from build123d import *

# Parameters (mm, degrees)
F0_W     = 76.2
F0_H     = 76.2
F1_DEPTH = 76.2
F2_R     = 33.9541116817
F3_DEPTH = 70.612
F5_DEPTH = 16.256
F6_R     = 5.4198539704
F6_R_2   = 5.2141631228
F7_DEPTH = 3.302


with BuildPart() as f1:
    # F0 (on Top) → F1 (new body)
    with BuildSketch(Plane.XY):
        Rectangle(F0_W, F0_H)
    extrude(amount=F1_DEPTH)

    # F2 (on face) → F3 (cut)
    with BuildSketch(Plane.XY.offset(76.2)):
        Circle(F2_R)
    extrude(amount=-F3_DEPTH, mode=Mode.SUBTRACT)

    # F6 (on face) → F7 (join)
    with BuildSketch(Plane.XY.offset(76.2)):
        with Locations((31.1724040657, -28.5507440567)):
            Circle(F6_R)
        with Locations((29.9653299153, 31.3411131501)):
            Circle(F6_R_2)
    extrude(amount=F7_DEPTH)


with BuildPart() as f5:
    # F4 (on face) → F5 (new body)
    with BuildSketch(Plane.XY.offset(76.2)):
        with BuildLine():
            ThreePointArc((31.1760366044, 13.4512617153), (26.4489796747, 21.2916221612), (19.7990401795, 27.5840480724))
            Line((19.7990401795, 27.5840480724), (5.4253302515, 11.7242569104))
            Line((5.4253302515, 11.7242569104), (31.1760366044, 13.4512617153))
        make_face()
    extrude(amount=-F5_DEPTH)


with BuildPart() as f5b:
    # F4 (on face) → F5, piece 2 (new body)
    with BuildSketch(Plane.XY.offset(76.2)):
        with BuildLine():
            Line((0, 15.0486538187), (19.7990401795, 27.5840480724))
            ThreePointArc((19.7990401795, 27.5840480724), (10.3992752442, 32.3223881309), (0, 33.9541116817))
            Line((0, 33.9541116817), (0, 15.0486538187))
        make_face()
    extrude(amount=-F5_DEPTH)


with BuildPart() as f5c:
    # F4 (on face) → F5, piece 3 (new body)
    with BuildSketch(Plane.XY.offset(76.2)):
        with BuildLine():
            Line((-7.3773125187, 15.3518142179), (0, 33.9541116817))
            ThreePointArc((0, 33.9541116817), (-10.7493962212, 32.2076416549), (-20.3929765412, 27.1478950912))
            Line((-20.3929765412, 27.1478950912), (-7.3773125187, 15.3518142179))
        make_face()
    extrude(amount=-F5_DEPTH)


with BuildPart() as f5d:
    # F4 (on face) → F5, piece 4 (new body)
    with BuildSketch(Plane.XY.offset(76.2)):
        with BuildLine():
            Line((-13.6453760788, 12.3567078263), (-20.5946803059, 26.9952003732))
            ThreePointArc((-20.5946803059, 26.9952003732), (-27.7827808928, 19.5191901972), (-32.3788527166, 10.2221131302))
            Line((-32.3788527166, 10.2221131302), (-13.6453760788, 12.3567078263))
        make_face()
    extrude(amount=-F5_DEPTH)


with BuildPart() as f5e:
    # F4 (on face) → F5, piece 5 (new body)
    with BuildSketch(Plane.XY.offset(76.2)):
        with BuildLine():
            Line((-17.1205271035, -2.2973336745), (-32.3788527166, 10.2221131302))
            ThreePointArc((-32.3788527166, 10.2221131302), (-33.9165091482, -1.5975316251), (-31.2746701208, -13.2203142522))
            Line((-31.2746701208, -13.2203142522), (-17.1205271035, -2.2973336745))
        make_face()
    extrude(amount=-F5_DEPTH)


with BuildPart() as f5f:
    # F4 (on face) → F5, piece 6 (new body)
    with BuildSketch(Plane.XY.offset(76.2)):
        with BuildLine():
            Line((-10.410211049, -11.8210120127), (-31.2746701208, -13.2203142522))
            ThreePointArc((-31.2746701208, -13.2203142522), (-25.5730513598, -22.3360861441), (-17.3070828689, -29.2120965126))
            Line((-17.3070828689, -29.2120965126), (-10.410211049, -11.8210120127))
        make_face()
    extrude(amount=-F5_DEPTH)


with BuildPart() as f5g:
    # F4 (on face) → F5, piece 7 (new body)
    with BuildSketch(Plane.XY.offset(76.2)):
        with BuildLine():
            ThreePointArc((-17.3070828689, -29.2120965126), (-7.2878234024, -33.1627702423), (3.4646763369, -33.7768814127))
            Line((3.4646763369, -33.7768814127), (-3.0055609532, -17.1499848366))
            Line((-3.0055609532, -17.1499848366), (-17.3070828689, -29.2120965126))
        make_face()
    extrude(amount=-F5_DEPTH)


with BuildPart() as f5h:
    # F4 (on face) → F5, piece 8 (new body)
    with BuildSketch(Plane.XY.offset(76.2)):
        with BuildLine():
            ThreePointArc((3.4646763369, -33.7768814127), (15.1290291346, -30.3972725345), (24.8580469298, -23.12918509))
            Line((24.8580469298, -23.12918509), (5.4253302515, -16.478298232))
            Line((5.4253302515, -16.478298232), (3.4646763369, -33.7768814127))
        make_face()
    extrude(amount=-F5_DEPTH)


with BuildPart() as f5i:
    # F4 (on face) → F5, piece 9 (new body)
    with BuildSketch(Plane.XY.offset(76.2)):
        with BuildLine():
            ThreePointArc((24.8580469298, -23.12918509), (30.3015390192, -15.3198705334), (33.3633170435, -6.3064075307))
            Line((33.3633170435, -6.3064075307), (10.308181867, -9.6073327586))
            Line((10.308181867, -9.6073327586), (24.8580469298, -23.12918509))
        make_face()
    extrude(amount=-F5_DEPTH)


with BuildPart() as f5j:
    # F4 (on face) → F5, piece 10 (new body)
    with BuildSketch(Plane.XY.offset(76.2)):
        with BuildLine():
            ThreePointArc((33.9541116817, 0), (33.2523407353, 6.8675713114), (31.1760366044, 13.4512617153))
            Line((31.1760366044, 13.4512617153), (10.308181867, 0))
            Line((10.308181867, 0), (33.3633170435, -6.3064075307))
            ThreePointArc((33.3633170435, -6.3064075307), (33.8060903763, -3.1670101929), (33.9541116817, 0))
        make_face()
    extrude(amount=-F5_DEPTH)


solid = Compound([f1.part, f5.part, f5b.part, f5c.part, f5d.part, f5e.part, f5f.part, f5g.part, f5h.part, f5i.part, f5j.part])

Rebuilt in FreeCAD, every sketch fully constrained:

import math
import FreeCAD as App
import Part
import Sketcher
from FreeCAD import Vector
Q = App.Units.Quantity

doc = App.newDocument("Part")
params = doc.addObject("Spreadsheet::Sheet", "Params")
for row, (alias, value) in enumerate([
    ("sketch1_width", "3 in"),
    ("pad1_length", "3 in"),
    ("pocket1_length", "2.78 in"),
    ("pad2_length", "0.13 in"),
    ("pad3_length", "0.64 in"),
    ("pad4_length", "0.64 in"),
    ("pad5_length", "0.64 in"),
    ("pad6_length", "0.64 in"),
    ("pad7_length", "0.64 in"),
    ("pad8_length", "0.64 in"),
    ("pad9_length", "0.64 in"),
    ("pad10_length", "0.64 in"),
    ("pad11_length", "0.64 in"),
    ("pad12_length", "0.64 in"),
], start=1):
    params.set(f"A{row}", alias)
    params.set(f"B{row}", "=" + value)
    params.setAlias(f"B{row}", alias)

body = doc.addObject("PartDesign::Body", "Body")

# Sketch on XY plane
sketch1 = doc.addObject("Sketcher::SketchObject", "Sketch")
body.addObject(sketch1)
sketch1.AttachmentSupport = (doc.XY_Plane, [""])
sketch1.MapMode = "FlatFace"
sketch1.addGeometry([
    Part.LineSegment(Vector(-38, 38, 0), Vector(-38, -38, 0)),
    Part.LineSegment(Vector(-38, -38, 0), Vector(38, -38, 0)),
    Part.LineSegment(Vector(38, -38, 0), Vector(38, 38, 0)),
    Part.LineSegment(Vector(38, 38, 0), Vector(-38, 38, 0)),
], False)
sketch1.addConstraint([
    Sketcher.Constraint("Coincident", 0, 2, 1, 1),
    Sketcher.Constraint("Coincident", 1, 2, 2, 1),
    Sketcher.Constraint("Coincident", 2, 2, 3, 1),
    Sketcher.Constraint("Coincident", 3, 2, 0, 1),
    Sketcher.Constraint("Vertical", 0),
    Sketcher.Constraint("Horizontal", 1),
    Sketcher.Constraint("Vertical", 2),
    Sketcher.Constraint("Horizontal", 3),
    Sketcher.Constraint("Symmetric", 0, 2, 2, 2, -1, 1),
    Sketcher.Constraint("Equal", 3, 0),
    Sketcher.Constraint("DistanceX", 1, 1, 1, 2, Q("3 in")),
])
sketch1.setExpression("Constraints[10]", "Params.sketch1_width")
pad1 = doc.addObject("PartDesign::Pad", "Pad")
body.addObject(pad1)
pad1.Profile = sketch1
pad1.setExpression("Length", "Params.pad1_length")

# Sketch on XY plane
sketch2 = doc.addObject("Sketcher::SketchObject", "Sketch001")
body.addObject(sketch2)
sketch2.AttachmentSupport = (doc.XY_Plane, [""])
sketch2.MapMode = "FlatFace"
sketch2.AttachmentOffset = App.Placement(Vector(0, 0, 3 * 25.4), App.Rotation())
sketch2.addGeometry(Part.Circle(Vector(0, 0, 0), Vector(0, 0, 1), 34), False)
sketch2.addConstraint([
    Sketcher.Constraint("Coincident", 0, 3, -1, 1),
    Sketcher.Constraint("Diameter", 0, Q("67.908223 mm")),
])
pocket1 = doc.addObject("PartDesign::Pocket", "Pocket")
body.addObject(pocket1)
pocket1.Profile = sketch2
pocket1.setExpression("Length", "Params.pocket1_length")

# Sketch on XY plane
sketch3 = doc.addObject("Sketcher::SketchObject", "Sketch002")
body.addObject(sketch3)
sketch3.AttachmentSupport = (doc.XY_Plane, [""])
sketch3.MapMode = "FlatFace"
sketch3.AttachmentOffset = App.Placement(Vector(0, 0, 3 * 25.4), App.Rotation())
sketch3.addGeometry([
    Part.Circle(Vector(31, -29, 0), Vector(0, 0, 1), 5),
    Part.Circle(Vector(30, 31, 0), Vector(0, 0, 1), 5),
], False)
sketch3.addConstraint([
    Sketcher.Constraint("Diameter", 0, Q("10.839708 mm")),
    Sketcher.Constraint("Diameter", 1, Q("10.428326 mm")),
    Sketcher.Constraint("DistanceX", -1, 1, 1, 3, Q("29.96533 mm")),
    Sketcher.Constraint("DistanceX", -1, 1, 0, 3, Q("31.172404 mm")),
    Sketcher.Constraint("DistanceY", 0, 3, -1, 1, Q("28.550744 mm")),
    Sketcher.Constraint("DistanceY", -1, 1, 1, 3, Q("31.341113 mm")),
])
pad2 = doc.addObject("PartDesign::Pad", "Pad001")
body.addObject(pad2)
pad2.Profile = sketch3
pad2.setExpression("Length", "Params.pad2_length")
body2 = doc.addObject("PartDesign::Body", "Body001")

# Sketch on XY plane
sketch4 = doc.addObject("Sketcher::SketchObject", "Sketch003")
body2.addObject(sketch4)
sketch4.AttachmentSupport = (doc.getObject("XY_Plane001"), [""])
sketch4.MapMode = "FlatFace"
sketch4.AttachmentOffset = App.Placement(Vector(0, 0, 3 * 25.4), App.Rotation())
sketch4.addGeometry([
    Part.ArcOfCircle(Part.Circle(Vector(0, 0, 0), Vector(0, 0, 1), 34), math.radians(23), math.radians(54)),
    Part.LineSegment(Vector(20, 28, 0), Vector(5, 12, 0)),
    Part.LineSegment(Vector(5, 12, 0), Vector(31, 13, 0)),
], False)
sketch4.addConstraint([
    Sketcher.Constraint("Coincident", 0, 2, 1, 1),
    Sketcher.Constraint("Coincident", 1, 2, 2, 1),
    Sketcher.Constraint("Coincident", 2, 2, 0, 1),
    Sketcher.Constraint("Coincident", 0, 3, -1, 1),
    Sketcher.Constraint("Radius", 0, Q("33.954112 mm")),
    Sketcher.Constraint("DistanceX", -1, 1, 0, 2, Q("19.79904 mm")),
    Sketcher.Constraint("DistanceX", -1, 1, 1, 2, Q("5.42533 mm")),
    Sketcher.Constraint("DistanceY", -1, 1, 2, 2, Q("13.451262 mm")),
    Sketcher.Constraint("DistanceY", 1, 2, 0, 2, Q("15.859791 mm")),
])
pad3 = doc.addObject("PartDesign::Pad", "Pad002")
body2.addObject(pad3)
pad3.Profile = sketch4
pad3.setExpression("Length", "Params.pad3_length")
pad3.Reversed = True
body3 = doc.addObject("PartDesign::Body", "Body002")

# Sketch on XY plane
sketch5 = doc.addObject("Sketcher::SketchObject", "Sketch004")
body3.addObject(sketch5)
sketch5.AttachmentSupport = (doc.getObject("XY_Plane002"), [""])
sketch5.MapMode = "FlatFace"
sketch5.AttachmentOffset = App.Placement(Vector(0, 0, 3 * 25.4), App.Rotation())
sketch5.addGeometry([
    Part.LineSegment(Vector(0, 15, 0), Vector(20, 28, 0)),
    Part.ArcOfCircle(Part.Circle(Vector(0, 0, 0), Vector(0, 0, 1), 34), math.radians(54), math.radians(90)),
    Part.LineSegment(Vector(0, 34, 0), Vector(0, 15, 0)),
], False)
sketch5.addConstraint([
    Sketcher.Constraint("Coincident", 0, 2, 1, 1),
    Sketcher.Constraint("Coincident", 1, 2, 2, 1),
    Sketcher.Constraint("Coincident", 2, 2, 0, 1),
    Sketcher.Constraint("Vertical", 2),
    Sketcher.Constraint("Coincident", 1, 3, -1, 1),
    Sketcher.Constraint("PointOnObject", 1, 2, -2),
    Sketcher.Constraint("Radius", 1, Q("33.954112 mm")),
    Sketcher.Constraint("DistanceY", 2, 2, 2, 1, Q("18.905458 mm")),
    Sketcher.Constraint("DistanceX", -1, 1, 0, 2, Q("19.79904 mm")),
])
pad4 = doc.addObject("PartDesign::Pad", "Pad003")
body3.addObject(pad4)
pad4.Profile = sketch5
pad4.setExpression("Length", "Params.pad4_length")
pad4.Reversed = True
body4 = doc.addObject("PartDesign::Body", "Body003")

# Sketch on XY plane
sketch6 = doc.addObject("Sketcher::SketchObject", "Sketch005")
body4.addObject(sketch6)
sketch6.AttachmentSupport = (doc.getObject("XY_Plane003"), [""])
sketch6.MapMode = "FlatFace"
sketch6.AttachmentOffset = App.Placement(Vector(0, 0, 3 * 25.4), App.Rotation())
sketch6.addGeometry([
    Part.LineSegment(Vector(-7, 15, 0), Vector(0, 34, 0)),
    Part.ArcOfCircle(Part.Circle(Vector(0, 0, 0), Vector(0, 0, 1), 34), math.radians(90), math.radians(127)),
    Part.LineSegment(Vector(-20, 27, 0), Vector(-7, 15, 0)),
], False)
sketch6.addConstraint([
    Sketcher.Constraint("Coincident", 0, 2, 1, 1),
    Sketcher.Constraint("Coincident", 1, 2, 2, 1),
    Sketcher.Constraint("Coincident", 2, 2, 0, 1),
    Sketcher.Constraint("Coincident", 1, 3, -1, 1),
    Sketcher.Constraint("PointOnObject", 0, 2, -2),
    Sketcher.Constraint("Radius", 1, Q("33.954112 mm")),
    Sketcher.Constraint("Distance", 0, Q("20.011752 mm")),
    Sketcher.Constraint("DistanceY", 2, 2, 1, 2, Q("11.796081 mm")),
    Sketcher.Constraint("Distance", 2, Q("17.565735 mm")),
])
pad5 = doc.addObject("PartDesign::Pad", "Pad004")
body4.addObject(pad5)
pad5.Profile = sketch6
pad5.setExpression("Length", "Params.pad5_length")
pad5.Reversed = True
body5 = doc.addObject("PartDesign::Body", "Body004")

# Sketch on XY plane
sketch7 = doc.addObject("Sketcher::SketchObject", "Sketch006")
body5.addObject(sketch7)
sketch7.AttachmentSupport = (doc.getObject("XY_Plane004"), [""])
sketch7.MapMode = "FlatFace"
sketch7.AttachmentOffset = App.Placement(Vector(0, 0, 3 * 25.4), App.Rotation())
sketch7.addGeometry([
    Part.LineSegment(Vector(-14, 12, 0), Vector(-21, 27, 0)),
    Part.ArcOfCircle(Part.Circle(Vector(0, 0, 0), Vector(0, 0, 1), 34), math.radians(127), math.radians(162)),
    Part.LineSegment(Vector(-32, 10, 0), Vector(-14, 12, 0)),
], False)
sketch7.addConstraint([
    Sketcher.Constraint("Coincident", 0, 2, 1, 1),
    Sketcher.Constraint("Coincident", 1, 2, 2, 1),
    Sketcher.Constraint("Coincident", 2, 2, 0, 1),
    Sketcher.Constraint("Coincident", 1, 3, -1, 1),
    Sketcher.Constraint("Radius", 1, Q("33.954112 mm")),
    Sketcher.Constraint("Distance", 2, Q("18.854698 mm")),
    Sketcher.Constraint("DistanceY", -1, 1, 0, 2, Q("26.9952 mm")),
    Sketcher.Constraint("Distance", 0, Q("16.204268 mm")),
    Sketcher.Constraint("DistanceX", 1, 2, -1, 1, Q("32.378853 mm")),
])
pad6 = doc.addObject("PartDesign::Pad", "Pad005")
body5.addObject(pad6)
pad6.Profile = sketch7
pad6.setExpression("Length", "Params.pad6_length")
pad6.Reversed = True
body6 = doc.addObject("PartDesign::Body", "Body005")

# Sketch on XY plane
sketch8 = doc.addObject("Sketcher::SketchObject", "Sketch007")
body6.addObject(sketch8)
sketch8.AttachmentSupport = (doc.getObject("XY_Plane005"), [""])
sketch8.MapMode = "FlatFace"
sketch8.AttachmentOffset = App.Placement(Vector(0, 0, 3 * 25.4), App.Rotation())
sketch8.addGeometry([
    Part.LineSegment(Vector(-17, -2, 0), Vector(-32, 10, 0)),
    Part.ArcOfCircle(Part.Circle(Vector(0, 0, 0), Vector(0, 0, 1), 34), math.radians(162), math.radians(203)),
    Part.LineSegment(Vector(-31, -13, 0), Vector(-17, -2, 0)),
], False)
sketch8.addConstraint([
    Sketcher.Constraint("Coincident", 0, 2, 1, 1),
    Sketcher.Constraint("Coincident", 1, 2, 2, 1),
    Sketcher.Constraint("Coincident", 2, 2, 0, 1),
    Sketcher.Constraint("Coincident", 1, 3, -1, 1),
    Sketcher.Constraint("Radius", 1, Q("33.954112 mm")),
    Sketcher.Constraint("Distance", 0, Q("19.737098 mm")),
    Sketcher.Constraint("DistanceX", 1, 2, -1, 1, Q("31.27467 mm")),
    Sketcher.Constraint("DistanceY", 1, 2, 2, 2, Q("10.922981 mm")),
    Sketcher.Constraint("Distance", 2, Q("17.878794 mm")),
])
pad7 = doc.addObject("PartDesign::Pad", "Pad006")
body6.addObject(pad7)
pad7.Profile = sketch8
pad7.setExpression("Length", "Params.pad7_length")
pad7.Reversed = True
body7 = doc.addObject("PartDesign::Body", "Body006")

# Sketch on XY plane
sketch9 = doc.addObject("Sketcher::SketchObject", "Sketch008")
body7.addObject(sketch9)
sketch9.AttachmentSupport = (doc.getObject("XY_Plane006"), [""])
sketch9.MapMode = "FlatFace"
sketch9.AttachmentOffset = App.Placement(Vector(0, 0, 3 * 25.4), App.Rotation())
sketch9.addGeometry([
    Part.LineSegment(Vector(-10, -12, 0), Vector(-31, -13, 0)),
    Part.ArcOfCircle(Part.Circle(Vector(0, 0, 0), Vector(0, 0, 1), 34), math.radians(-157), math.radians(-121)),
    Part.LineSegment(Vector(-17, -29, 0), Vector(-10, -12, 0)),
], False)
sketch9.addConstraint([
    Sketcher.Constraint("Coincident", 0, 2, 1, 1),
    Sketcher.Constraint("Coincident", 1, 2, 2, 1),
    Sketcher.Constraint("Coincident", 2, 2, 0, 1),
    Sketcher.Constraint("Coincident", 1, 3, -1, 1),
    Sketcher.Constraint("Radius", 1, Q("33.954112 mm")),
    Sketcher.Constraint("Distance", 0, Q("20.911329 mm")),
    Sketcher.Constraint("DistanceX", 0, 2, -1, 1, Q("31.27467 mm")),
    Sketcher.Constraint("DistanceX", 2, 2, -1, 1, Q("10.410211 mm")),
    Sketcher.Constraint("DistanceX", 1, 2, 2, 2, Q("6.896872 mm")),
])
pad8 = doc.addObject("PartDesign::Pad", "Pad007")
body7.addObject(pad8)
pad8.Profile = sketch9
pad8.setExpression("Length", "Params.pad8_length")
pad8.Reversed = True
body8 = doc.addObject("PartDesign::Body", "Body007")

# Sketch on XY plane
sketch10 = doc.addObject("Sketcher::SketchObject", "Sketch009")
body8.addObject(sketch10)
sketch10.AttachmentSupport = (doc.getObject("XY_Plane007"), [""])
sketch10.MapMode = "FlatFace"
sketch10.AttachmentOffset = App.Placement(Vector(0, 0, 3 * 25.4), App.Rotation())
sketch10.addGeometry([
    Part.ArcOfCircle(Part.Circle(Vector(0, 0, 0), Vector(0, 0, 1), 34), math.radians(-121), math.radians(-84)),
    Part.LineSegment(Vector(3, -34, 0), Vector(-3, -17, 0)),
    Part.LineSegment(Vector(-3, -17, 0), Vector(-17, -29, 0)),
], False)
sketch10.addConstraint([
    Sketcher.Constraint("Coincident", 0, 2, 1, 1),
    Sketcher.Constraint("Coincident", 1, 2, 2, 1),
    Sketcher.Constraint("Coincident", 2, 2, 0, 1),
    Sketcher.Constraint("Coincident", 0, 3, -1, 1),
    Sketcher.Constraint("Radius", 0, Q("33.954112 mm")),
    Sketcher.Constraint("Distance", 1, Q("17.841459 mm")),
    Sketcher.Constraint("DistanceY", 0, 2, -1, 1, Q("33.776881 mm")),
    Sketcher.Constraint("DistanceX", 1, 2, -1, 1, Q("3.005561 mm")),
    Sketcher.Constraint("DistanceX", 2, 2, 1, 2, Q("14.301522 mm")),
])
pad9 = doc.addObject("PartDesign::Pad", "Pad008")
body8.addObject(pad9)
pad9.Profile = sketch10
pad9.setExpression("Length", "Params.pad9_length")
pad9.Reversed = True
body9 = doc.addObject("PartDesign::Body", "Body008")

# Sketch on XY plane
sketch11 = doc.addObject("Sketcher::SketchObject", "Sketch010")
body9.addObject(sketch11)
sketch11.AttachmentSupport = (doc.getObject("XY_Plane008"), [""])
sketch11.MapMode = "FlatFace"
sketch11.AttachmentOffset = App.Placement(Vector(0, 0, 3 * 25.4), App.Rotation())
sketch11.addGeometry([
    Part.ArcOfCircle(Part.Circle(Vector(0, 0, 0), Vector(0, 0, 1), 34), math.radians(-84), math.radians(-43)),
    Part.LineSegment(Vector(25, -23, 0), Vector(5, -16, 0)),
    Part.LineSegment(Vector(5, -16, 0), Vector(3, -34, 0)),
], False)
sketch11.addConstraint([
    Sketcher.Constraint("Coincident", 0, 2, 1, 1),
    Sketcher.Constraint("Coincident", 1, 2, 2, 1),
    Sketcher.Constraint("Coincident", 2, 2, 0, 1),
    Sketcher.Constraint("Coincident", 0, 3, -1, 1),
    Sketcher.Constraint("Radius", 0, Q("33.954112 mm")),
    Sketcher.Constraint("DistanceY", 1, 2, -1, 1, Q("16.478298 mm")),
    Sketcher.Constraint("Distance", 2, Q("17.409341 mm")),
    Sketcher.Constraint("DistanceX", -1, 1, 1, 2, Q("5.42533 mm")),
    Sketcher.Constraint("DistanceX", 2, 2, 0, 2, Q("21.393371 mm")),
])
pad10 = doc.addObject("PartDesign::Pad", "Pad009")
body9.addObject(pad10)
pad10.Profile = sketch11
pad10.setExpression("Length", "Params.pad10_length")
pad10.Reversed = True
body10 = doc.addObject("PartDesign::Body", "Body009")

# Sketch on XY plane
sketch12 = doc.addObject("Sketcher::SketchObject", "Sketch011")
body10.addObject(sketch12)
sketch12.AttachmentSupport = (doc.getObject("XY_Plane009"), [""])
sketch12.MapMode = "FlatFace"
sketch12.AttachmentOffset = App.Placement(Vector(0, 0, 3 * 25.4), App.Rotation())
sketch12.addGeometry([
    Part.ArcOfCircle(Part.Circle(Vector(0, 0, 0), Vector(0, 0, 1), 34), math.radians(-43), math.radians(-11)),
    Part.LineSegment(Vector(33, -6, 0), Vector(10, -10, 0)),
    Part.LineSegment(Vector(10, -10, 0), Vector(25, -23, 0)),
], False)
sketch12.addConstraint([
    Sketcher.Constraint("Coincident", 0, 2, 1, 1),
    Sketcher.Constraint("Coincident", 1, 2, 2, 1),
    Sketcher.Constraint("Coincident", 2, 2, 0, 1),
    Sketcher.Constraint("Coincident", 0, 3, -1, 1),
    Sketcher.Constraint("Radius", 0, Q("33.954112 mm")),
    Sketcher.Constraint("Distance", 1, Q("23.290242 mm")),
    Sketcher.Constraint("DistanceX", -1, 1, 1, 2, Q("10.308182 mm")),
    Sketcher.Constraint("DistanceX", 2, 2, 0, 2, Q("8.50527 mm")),
    Sketcher.Constraint("Distance", 2, Q("19.863007 mm")),
])
pad11 = doc.addObject("PartDesign::Pad", "Pad010")
body10.addObject(pad11)
pad11.Profile = sketch12
pad11.setExpression("Length", "Params.pad11_length")
pad11.Reversed = True
body11 = doc.addObject("PartDesign::Body", "Body010")

# Sketch on XY plane
sketch13 = doc.addObject("Sketcher::SketchObject", "Sketch012")
body11.addObject(sketch13)
sketch13.AttachmentSupport = (doc.getObject("XY_Plane010"), [""])
sketch13.MapMode = "FlatFace"
sketch13.AttachmentOffset = App.Placement(Vector(0, 0, 3 * 25.4), App.Rotation())
sketch13.addGeometry([
    Part.ArcOfCircle(Part.Circle(Vector(0, 0, 0), Vector(0, 0, 1), 34), math.radians(0), math.radians(23)),
    Part.LineSegment(Vector(31, 13, 0), Vector(10, 0, 0)),
    Part.LineSegment(Vector(10, 0, 0), Vector(33, -6, 0)),
    Part.ArcOfCircle(Part.Circle(Vector(0, 0, 0), Vector(0, 0, 1), 34), math.radians(-10.7), math.radians(0)),
], False)
sketch13.addConstraint([
    Sketcher.Constraint("Coincident", 0, 2, 1, 1),
    Sketcher.Constraint("Coincident", 1, 2, 2, 1),
    Sketcher.Constraint("Coincident", 2, 2, 3, 1),
    Sketcher.Constraint("Tangent", 3, 2, 0, 1),
    Sketcher.Constraint("Coincident", 0, 3, -1, 1),
    Sketcher.Constraint("Equal", 0, 3),
    Sketcher.Constraint("PointOnObject", 1, 2, -1),
    Sketcher.Constraint("PointOnObject", 3, 2, -1),
    Sketcher.Constraint("Radius", 0, Q("33.954112 mm")),
    Sketcher.Constraint("Distance", 1, Q("24.827481 mm")),
    Sketcher.Constraint("DistanceY", -1, 1, 0, 2, Q("13.451262 mm")),
    Sketcher.Constraint("DistanceX", 0, 2, 2, 2, Q("2.18728 mm")),
])
pad12 = doc.addObject("PartDesign::Pad", "Pad011")
body11.addObject(pad12)
pad12.Profile = sketch13
pad12.setExpression("Length", "Params.pad12_length")
pad12.Reversed = True

doc.recompute()
